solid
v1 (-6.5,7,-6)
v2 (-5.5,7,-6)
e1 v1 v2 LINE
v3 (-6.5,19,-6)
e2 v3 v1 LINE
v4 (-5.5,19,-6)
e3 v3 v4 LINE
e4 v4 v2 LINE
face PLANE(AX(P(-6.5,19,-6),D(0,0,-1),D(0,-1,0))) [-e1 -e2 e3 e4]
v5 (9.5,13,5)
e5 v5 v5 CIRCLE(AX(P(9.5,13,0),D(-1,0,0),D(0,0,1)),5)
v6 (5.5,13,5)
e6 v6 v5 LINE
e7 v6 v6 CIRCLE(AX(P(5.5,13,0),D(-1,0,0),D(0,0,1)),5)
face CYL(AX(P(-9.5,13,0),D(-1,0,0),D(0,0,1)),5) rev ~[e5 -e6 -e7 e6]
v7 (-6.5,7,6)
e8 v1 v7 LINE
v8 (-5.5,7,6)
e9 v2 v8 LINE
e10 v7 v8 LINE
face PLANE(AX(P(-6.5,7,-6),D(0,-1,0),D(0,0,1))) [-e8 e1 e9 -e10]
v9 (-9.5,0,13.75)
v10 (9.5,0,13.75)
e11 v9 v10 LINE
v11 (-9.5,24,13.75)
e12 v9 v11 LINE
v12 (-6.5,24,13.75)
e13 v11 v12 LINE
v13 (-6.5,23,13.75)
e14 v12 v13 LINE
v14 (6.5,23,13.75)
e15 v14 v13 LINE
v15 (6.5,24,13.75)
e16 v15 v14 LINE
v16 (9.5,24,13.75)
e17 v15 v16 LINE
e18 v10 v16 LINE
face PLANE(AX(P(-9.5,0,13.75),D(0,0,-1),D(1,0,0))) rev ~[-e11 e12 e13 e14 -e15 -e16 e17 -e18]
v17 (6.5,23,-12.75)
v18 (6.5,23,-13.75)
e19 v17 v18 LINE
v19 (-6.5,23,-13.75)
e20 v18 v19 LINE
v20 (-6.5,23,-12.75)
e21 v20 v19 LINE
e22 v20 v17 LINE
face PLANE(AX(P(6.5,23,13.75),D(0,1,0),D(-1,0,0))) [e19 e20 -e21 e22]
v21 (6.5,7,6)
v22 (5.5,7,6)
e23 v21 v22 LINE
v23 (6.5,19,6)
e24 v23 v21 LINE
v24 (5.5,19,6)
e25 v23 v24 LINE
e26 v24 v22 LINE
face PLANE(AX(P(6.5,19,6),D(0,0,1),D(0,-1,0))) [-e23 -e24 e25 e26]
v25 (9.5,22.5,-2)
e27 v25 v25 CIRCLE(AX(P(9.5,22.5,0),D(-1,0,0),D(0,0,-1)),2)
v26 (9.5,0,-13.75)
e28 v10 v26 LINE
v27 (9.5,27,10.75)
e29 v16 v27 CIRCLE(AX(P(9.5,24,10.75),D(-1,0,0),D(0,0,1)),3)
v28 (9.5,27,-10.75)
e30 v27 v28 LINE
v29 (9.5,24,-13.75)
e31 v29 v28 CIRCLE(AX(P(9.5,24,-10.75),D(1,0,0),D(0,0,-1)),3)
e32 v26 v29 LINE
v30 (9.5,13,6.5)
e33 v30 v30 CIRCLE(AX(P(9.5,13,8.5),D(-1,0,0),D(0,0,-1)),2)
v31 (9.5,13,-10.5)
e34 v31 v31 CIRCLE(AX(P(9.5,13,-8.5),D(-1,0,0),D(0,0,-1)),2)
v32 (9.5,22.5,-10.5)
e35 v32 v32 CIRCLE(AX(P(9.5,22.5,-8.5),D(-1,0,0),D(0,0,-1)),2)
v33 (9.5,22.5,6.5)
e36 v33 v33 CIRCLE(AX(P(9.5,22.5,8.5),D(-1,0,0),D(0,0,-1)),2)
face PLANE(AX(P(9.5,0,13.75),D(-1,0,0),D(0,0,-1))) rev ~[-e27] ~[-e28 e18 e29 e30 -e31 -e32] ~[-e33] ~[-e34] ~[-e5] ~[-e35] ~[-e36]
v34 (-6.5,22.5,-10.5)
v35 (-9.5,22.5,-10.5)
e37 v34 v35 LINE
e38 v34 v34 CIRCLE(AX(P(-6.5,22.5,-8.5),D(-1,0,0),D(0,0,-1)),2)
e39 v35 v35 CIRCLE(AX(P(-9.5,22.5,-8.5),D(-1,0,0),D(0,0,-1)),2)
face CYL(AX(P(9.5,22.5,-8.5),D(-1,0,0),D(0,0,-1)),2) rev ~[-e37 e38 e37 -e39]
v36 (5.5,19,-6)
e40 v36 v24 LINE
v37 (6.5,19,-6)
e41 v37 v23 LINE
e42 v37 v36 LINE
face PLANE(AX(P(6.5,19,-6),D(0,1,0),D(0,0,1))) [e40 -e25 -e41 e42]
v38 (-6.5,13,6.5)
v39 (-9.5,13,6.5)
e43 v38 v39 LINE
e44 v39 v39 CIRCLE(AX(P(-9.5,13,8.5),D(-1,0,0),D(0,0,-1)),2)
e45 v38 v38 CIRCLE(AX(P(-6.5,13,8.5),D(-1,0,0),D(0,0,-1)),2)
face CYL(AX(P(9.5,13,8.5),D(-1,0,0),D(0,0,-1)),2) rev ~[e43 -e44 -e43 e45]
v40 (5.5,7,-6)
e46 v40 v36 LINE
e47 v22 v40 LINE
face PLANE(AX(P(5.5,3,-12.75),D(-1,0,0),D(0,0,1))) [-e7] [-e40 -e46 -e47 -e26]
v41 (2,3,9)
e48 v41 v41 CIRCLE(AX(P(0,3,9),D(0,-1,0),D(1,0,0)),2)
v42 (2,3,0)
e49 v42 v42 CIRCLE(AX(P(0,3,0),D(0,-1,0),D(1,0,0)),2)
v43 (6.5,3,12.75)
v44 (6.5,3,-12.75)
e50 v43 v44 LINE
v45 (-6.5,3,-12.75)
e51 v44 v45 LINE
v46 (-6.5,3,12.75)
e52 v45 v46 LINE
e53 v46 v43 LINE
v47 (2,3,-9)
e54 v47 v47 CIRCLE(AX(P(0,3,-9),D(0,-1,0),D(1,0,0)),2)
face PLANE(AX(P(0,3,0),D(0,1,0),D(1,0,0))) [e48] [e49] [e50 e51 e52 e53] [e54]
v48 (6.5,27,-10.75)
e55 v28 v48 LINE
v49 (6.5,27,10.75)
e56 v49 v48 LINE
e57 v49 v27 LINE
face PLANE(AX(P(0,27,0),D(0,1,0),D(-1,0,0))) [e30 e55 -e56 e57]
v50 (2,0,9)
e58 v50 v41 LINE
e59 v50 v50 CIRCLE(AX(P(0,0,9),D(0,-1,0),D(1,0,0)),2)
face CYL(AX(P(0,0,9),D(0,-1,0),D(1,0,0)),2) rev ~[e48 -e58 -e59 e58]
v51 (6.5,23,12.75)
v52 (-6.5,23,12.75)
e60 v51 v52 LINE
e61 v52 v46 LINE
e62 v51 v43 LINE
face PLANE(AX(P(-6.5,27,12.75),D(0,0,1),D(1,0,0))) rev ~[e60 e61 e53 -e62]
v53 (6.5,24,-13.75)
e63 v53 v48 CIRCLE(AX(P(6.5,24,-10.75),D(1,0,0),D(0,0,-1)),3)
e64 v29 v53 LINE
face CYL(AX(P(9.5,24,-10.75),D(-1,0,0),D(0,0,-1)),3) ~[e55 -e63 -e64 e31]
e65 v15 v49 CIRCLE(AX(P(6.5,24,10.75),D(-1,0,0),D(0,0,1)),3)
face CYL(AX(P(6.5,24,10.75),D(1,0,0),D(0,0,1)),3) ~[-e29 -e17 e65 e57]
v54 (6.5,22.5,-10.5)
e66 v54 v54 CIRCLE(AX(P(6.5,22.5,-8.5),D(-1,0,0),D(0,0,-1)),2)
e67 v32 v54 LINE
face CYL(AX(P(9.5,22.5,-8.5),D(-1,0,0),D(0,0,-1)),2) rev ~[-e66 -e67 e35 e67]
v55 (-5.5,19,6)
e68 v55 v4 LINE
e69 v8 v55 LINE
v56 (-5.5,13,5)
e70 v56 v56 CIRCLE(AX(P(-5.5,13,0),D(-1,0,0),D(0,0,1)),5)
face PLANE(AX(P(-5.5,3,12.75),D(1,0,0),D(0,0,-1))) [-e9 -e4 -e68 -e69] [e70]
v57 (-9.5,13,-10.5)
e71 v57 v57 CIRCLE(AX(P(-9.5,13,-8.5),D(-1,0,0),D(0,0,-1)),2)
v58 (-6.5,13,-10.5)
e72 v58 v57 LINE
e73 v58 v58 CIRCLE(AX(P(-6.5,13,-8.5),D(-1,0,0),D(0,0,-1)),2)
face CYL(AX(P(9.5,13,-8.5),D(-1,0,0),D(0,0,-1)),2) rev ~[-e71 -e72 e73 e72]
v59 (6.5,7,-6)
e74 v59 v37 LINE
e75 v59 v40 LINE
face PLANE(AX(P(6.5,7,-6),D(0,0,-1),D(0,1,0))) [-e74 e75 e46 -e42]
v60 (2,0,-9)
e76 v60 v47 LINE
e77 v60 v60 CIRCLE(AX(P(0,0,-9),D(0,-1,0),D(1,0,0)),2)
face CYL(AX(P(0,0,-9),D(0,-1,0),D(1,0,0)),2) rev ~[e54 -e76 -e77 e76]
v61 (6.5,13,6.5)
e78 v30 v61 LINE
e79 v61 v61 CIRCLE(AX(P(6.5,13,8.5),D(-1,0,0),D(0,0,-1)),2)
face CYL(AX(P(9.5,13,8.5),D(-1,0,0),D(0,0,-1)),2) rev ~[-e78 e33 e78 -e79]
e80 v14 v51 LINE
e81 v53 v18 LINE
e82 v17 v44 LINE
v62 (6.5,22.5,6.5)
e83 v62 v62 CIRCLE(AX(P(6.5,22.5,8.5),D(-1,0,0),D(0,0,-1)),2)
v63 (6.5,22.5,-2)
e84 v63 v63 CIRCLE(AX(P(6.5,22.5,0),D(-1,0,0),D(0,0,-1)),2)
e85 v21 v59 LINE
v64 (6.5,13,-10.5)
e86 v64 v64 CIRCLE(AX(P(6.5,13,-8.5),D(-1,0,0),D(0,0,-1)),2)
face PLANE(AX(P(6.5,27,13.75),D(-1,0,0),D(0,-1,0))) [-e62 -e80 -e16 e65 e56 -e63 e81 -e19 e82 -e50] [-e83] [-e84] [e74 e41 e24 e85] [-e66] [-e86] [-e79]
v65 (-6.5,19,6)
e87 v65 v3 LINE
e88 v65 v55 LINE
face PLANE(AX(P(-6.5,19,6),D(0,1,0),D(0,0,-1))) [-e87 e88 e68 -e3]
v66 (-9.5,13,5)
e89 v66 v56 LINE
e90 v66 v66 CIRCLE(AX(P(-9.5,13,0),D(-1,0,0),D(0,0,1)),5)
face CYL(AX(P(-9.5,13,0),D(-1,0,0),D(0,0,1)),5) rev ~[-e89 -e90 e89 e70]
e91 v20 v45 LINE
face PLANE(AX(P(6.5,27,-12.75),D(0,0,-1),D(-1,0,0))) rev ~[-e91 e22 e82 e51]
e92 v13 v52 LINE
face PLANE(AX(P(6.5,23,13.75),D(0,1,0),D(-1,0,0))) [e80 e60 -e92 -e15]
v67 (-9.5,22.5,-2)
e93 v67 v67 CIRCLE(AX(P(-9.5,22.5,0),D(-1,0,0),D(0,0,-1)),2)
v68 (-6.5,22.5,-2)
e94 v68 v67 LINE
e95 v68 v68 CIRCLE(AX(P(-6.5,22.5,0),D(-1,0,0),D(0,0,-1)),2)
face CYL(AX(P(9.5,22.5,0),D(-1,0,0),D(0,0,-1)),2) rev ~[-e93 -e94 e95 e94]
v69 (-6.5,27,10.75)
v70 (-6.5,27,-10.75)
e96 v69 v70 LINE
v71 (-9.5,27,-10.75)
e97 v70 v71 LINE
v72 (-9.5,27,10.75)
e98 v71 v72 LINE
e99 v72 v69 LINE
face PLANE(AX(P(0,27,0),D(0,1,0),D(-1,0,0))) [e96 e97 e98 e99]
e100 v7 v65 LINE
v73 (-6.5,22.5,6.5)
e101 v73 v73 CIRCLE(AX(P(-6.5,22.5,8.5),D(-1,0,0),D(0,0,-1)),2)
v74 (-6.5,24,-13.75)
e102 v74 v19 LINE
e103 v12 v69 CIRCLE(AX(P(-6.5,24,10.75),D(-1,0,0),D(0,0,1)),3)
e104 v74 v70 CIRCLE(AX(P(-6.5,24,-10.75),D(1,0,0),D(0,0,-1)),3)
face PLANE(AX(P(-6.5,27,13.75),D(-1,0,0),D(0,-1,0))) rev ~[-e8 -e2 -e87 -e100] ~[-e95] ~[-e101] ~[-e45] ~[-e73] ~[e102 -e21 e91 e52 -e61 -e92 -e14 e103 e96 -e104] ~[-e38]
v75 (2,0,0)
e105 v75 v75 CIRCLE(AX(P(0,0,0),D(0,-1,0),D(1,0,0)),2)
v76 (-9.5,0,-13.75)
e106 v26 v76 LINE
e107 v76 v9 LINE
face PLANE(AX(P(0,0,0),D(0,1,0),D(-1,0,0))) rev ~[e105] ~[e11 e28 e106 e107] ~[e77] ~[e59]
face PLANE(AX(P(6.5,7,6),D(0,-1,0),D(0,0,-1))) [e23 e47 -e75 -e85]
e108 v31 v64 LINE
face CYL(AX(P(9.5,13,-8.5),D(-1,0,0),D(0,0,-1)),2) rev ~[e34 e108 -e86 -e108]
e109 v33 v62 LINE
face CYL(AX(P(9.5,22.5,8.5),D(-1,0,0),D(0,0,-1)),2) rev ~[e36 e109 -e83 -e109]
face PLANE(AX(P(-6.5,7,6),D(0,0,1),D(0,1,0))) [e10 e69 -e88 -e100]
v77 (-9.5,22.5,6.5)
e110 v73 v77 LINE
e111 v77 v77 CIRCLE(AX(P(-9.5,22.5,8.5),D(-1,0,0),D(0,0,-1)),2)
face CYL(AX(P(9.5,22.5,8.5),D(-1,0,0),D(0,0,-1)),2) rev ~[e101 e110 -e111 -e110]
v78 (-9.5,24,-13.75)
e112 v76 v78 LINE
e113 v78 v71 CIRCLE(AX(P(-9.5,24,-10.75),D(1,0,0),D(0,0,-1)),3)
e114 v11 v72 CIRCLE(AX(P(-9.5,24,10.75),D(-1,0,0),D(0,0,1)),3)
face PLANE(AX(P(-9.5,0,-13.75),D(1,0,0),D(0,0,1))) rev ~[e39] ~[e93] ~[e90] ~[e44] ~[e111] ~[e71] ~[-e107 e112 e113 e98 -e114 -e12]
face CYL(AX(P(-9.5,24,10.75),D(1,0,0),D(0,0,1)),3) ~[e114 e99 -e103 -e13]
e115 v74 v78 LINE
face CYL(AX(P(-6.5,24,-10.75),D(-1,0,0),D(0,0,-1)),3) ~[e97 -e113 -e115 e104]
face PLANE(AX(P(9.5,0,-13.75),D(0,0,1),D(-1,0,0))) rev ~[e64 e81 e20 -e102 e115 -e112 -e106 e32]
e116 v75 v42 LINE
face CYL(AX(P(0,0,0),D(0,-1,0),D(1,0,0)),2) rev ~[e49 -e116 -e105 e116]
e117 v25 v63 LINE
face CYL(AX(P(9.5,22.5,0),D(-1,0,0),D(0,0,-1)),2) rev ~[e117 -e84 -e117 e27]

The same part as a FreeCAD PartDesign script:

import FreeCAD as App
import Part
import Sketcher
from FreeCAD import Vector


def edges_at(feature, points):
    """Names of the edges that pass closest to the given points."""
    edges = feature.Shape.Edges
    near = lambda p: min(range(len(edges)), key=lambda i: edges[i].distToShape(Part.Vertex(*p))[0])
    return sorted({f"Edge{near(p) + 1}" for p in points})

doc = App.newDocument("Part")
params = doc.addObject("Spreadsheet::Sheet", "Params")
for row, (alias, value) in enumerate([
    ("sketch1_width", "19 mm"),
    ("sketch1_height", "27.5 mm"),
    ("pad1_length", "27 mm"),
    ("sketch2_width", "13 mm"),
    ("sketch2_height", "25.5 mm"),
    ("pocket1_length", "24 mm"),
    ("sketch3_height", "4 mm"),
    ("sketch3_width", "13 mm"),
    ("pocket2_length", "30 mm"),
    ("fillet_radius", "3 mm"),
    ("sketch4_diameter", "4 mm"),
    ("pocket3_length", "5 mm"),
    ("sketch5_diameter", "4 mm"),
    ("hole_diameter", "4 mm"),
    ("sketch6_width", "12 mm"),
    ("sketch6_diameter", "4 mm"),
    ("pad2_length", "1 mm"),
    ("sketch7_diameter", "4 mm"),
    ("sketch7_width", "12 mm"),
    ("pad3_length", "1 mm"),
    ("sketch8_diameter", "10 mm"),
    ("sketch8_diameter2", "4 mm"),
], start=1):
    params.set(f"A{row}", alias)
    params.set(f"B{row}", "=" + value)
    params.setAlias(f"B{row}", alias)

body = doc.addObject("PartDesign::Body", "Body")

# Sketch on XZ plane
sketch1 = body.newObject("Sketcher::SketchObject", "Sketch")
sketch1.AttachmentSupport = (doc.getObject("XZ_Plane"), [""])
sketch1.MapMode = "FlatFace"
sketch1.addGeometry([
    Part.LineSegment(Vector(-9.5, -13.75, 0), Vector(-9.5, 13.75, 0)),
    Part.LineSegment(Vector(-9.5, 13.75, 0), Vector(9.5, 13.75, 0)),
    Part.LineSegment(Vector(9.5, 13.75, 0), Vector(9.5, -13.75, 0)),
    Part.LineSegment(Vector(9.5, -13.75, 0), Vector(-9.5, -13.75, 0)),
], False)
sketch1.addConstraint([
    Sketcher.Constraint("Coincident", 0, 2, 1, 1),
    Sketcher.Constraint("Coincident", 1, 2, 2, 1),
    Sketcher.Constraint("Coincident", 2, 2, 3, 1),
    Sketcher.Constraint("Coincident", 3, 2, 0, 1),
    Sketcher.Constraint("Vertical", 0),
    Sketcher.Constraint("Horizontal", 1),
    Sketcher.Constraint("Vertical", 2),
    Sketcher.Constraint("Horizontal", 3),
    Sketcher.Constraint("Symmetric", 0, 2, 2, 2, -1, 1),
    Sketcher.Constraint("DistanceX", 1, 1, 1, 2, 19.0),
    Sketcher.Constraint("DistanceY", 0, 1, 0, 2, 27.5),
])
sketch1.setExpression("Constraints[9]", "Params.sketch1_width")
sketch1.setExpression("Constraints[10]", "Params.sketch1_height")
pad1 = body.newObject("PartDesign::Pad", "Pad")
pad1.Profile = sketch1
pad1.setExpression("Length", "Params.pad1_length")
pad1.Reversed = True

# Sketch on XZ plane
sketch2 = body.newObject("Sketcher::SketchObject", "Sketch001")
sketch2.AttachmentSupport = (doc.getObject("XZ_Plane"), [""])
sketch2.MapMode = "FlatFace"
sketch2.AttachmentOffset = App.Placement(Vector(0, 0, -27), App.Rotation())
sketch2.addGeometry([
    Part.LineSegment(Vector(-6.5, -12.75, 0), Vector(-6.5, 12.75, 0)),
    Part.LineSegment(Vector(-6.5, 12.75, 0), Vector(6.5, 12.75, 0)),
    Part.LineSegment(Vector(6.5, 12.75, 0), Vector(6.5, -12.75, 0)),
    Part.LineSegment(Vector(6.5, -12.75, 0), Vector(-6.5, -12.75, 0)),
], False)
sketch2.addConstraint([
    Sketcher.Constraint("Coincident", 0, 2, 1, 1),
    Sketcher.Constraint("Coincident", 1, 2, 2, 1),
    Sketcher.Constraint("Coincident", 2, 2, 3, 1),
    Sketcher.Constraint("Coincident", 3, 2, 0, 1),
    Sketcher.Constraint("Vertical", 0),
    Sketcher.Constraint("Horizontal", 1),
    Sketcher.Constraint("Vertical", 2),
    Sketcher.Constraint("Horizontal", 3),
    Sketcher.Constraint("Symmetric", 0, 2, 2, 2, -1, 1),
    Sketcher.Constraint("DistanceX", 1, 1, 1, 2, 13.0),
    Sketcher.Constraint("DistanceY", 0, 1, 0, 2, 25.5),
])
sketch2.setExpression("Constraints[9]", "Params.sketch2_width")
sketch2.setExpression("Constraints[10]", "Params.sketch2_height")
pocket1 = body.newObject("PartDesign::Pocket", "Pocket")
pocket1.Profile = sketch2
pocket1.setExpression("Length", "Params.pocket1_length")
pocket1.Reversed = True

# Sketch on XY plane
sketch3 = body.newObject("Sketcher::SketchObject", "Sketch002")
sketch3.AttachmentSupport = (doc.getObject("XY_Plane"), [""])
sketch3.MapMode = "FlatFace"
sketch3.AttachmentOffset = App.Placement(Vector(0, 0, 13.75), App.Rotation())
sketch3.addGeometry([
    Part.LineSegment(Vector(6.5, 27, 0), Vector(-6.5, 27, 0)),
    Part.LineSegment(Vector(-6.5, 27, 0), Vector(-6.5, 23, 0)),
    Part.LineSegment(Vector(-6.5, 23, 0), Vector(6.5, 23, 0)),
    Part.LineSegment(Vector(6.5, 23, 0), Vector(6.5, 27, 0)),
], False)
sketch3.addConstraint([
    Sketcher.Constraint("Coincident", 0, 2, 1, 1),
    Sketcher.Constraint("Coincident", 1, 2, 2, 1),
    Sketcher.Constraint("Coincident", 2, 2, 3, 1),
    Sketcher.Constraint("Coincident", 3, 2, 0, 1),
    Sketcher.Constraint("Horizontal", 0),
    Sketcher.Constraint("Vertical", 1),
    Sketcher.Constraint("Horizontal", 2),
    Sketcher.Constraint("Vertical", 3),
    Sketcher.Constraint("DistanceY", 1, 2, 1, 1, 4.0),
    Sketcher.Constraint("DistanceX", 0, 2, 0, 1, 13.0),
    Sketcher.Constraint("DistanceY", -1, 1, 0, 2, 27.0),
    Sketcher.Constraint("DistanceX", 0, 2, -1, 1, 6.5),
])
sketch3.setExpression("Constraints[8]", "Params.sketch3_height")
sketch3.setExpression("Constraints[9]", "Params.sketch3_width")
pocket2 = body.newObject("PartDesign::Pocket", "Pocket001")
pocket2.Profile = sketch3
pocket2.setExpression("Length", "Params.pocket2_length")
doc.recompute()

fillet = body.newObject("PartDesign::Fillet", "Fillet")
fillet.Base = (pocket2, edges_at(pocket2, [
    (-8, 27, 13.75),
    (-8, 27, -13.75),
    (8, 27, -13.75),
    (8, 27, 13.75),
]))
fillet.setExpression("Radius", "Params.fillet_radius")

# Sketch on XZ plane
sketch4 = body.newObject("Sketcher::SketchObject", "Sketch003")
sketch4.AttachmentSupport = (doc.getObject("XZ_Plane"), [""])
sketch4.MapMode = "FlatFace"
sketch4.addGeometry([
    Part.Circle(Vector(0, 0, 0), Vector(0, 0, 1), 2),
    Part.Circle(Vector(0, -9, 0), Vector(0, 0, 1), 2),
    Part.Circle(Vector(0, 9, 0), Vector(0, 0, 1), 2),
], False)
sketch4.addConstraint([
    Sketcher.Constraint("Coincident", 0, 3, -1, 1),
    Sketcher.Constraint("Equal", 0, 1),
    Sketcher.Constraint("Equal", 1, 2),
    Sketcher.Constraint("Symmetric", 1, 3, 2, 3, -1, 1),
    Sketcher.Constraint("PointOnObject", 1, 3, -2),
    Sketcher.Constraint("Diameter", 0, 4.0),
    Sketcher.Constraint("DistanceY", 1, 3, -1, 1, 9.0),
])
sketch4.setExpression("Constraints[5]", "Params.sketch4_diameter")
pocket3 = body.newObject("PartDesign::Pocket", "Pocket002")
pocket3.Profile = sketch4
pocket3.setExpression("Length", "Params.pocket3_length")

# Sketch on YZ plane
sketch5 = body.newObject("Sketcher::SketchObject", "Sketch004")
sketch5.AttachmentSupport = (doc.getObject("YZ_Plane"), [""])
sketch5.MapMode = "FlatFace"
sketch5.AttachmentOffset = App.Placement(Vector(0, 0, 9.5), App.Rotation())
sketch5.addGeometry([
    Part.Circle(Vector(22.5, 8.5, 0), Vector(0, 0, 1), 2),  # 0
    Part.Circle(Vector(22.5, 0, 0), Vector(0, 0, 1), 2),  # 1
    Part.Circle(Vector(22.5, -8.5, 0), Vector(0, 0, 1), 2),  # 2
    Part.Circle(Vector(13, 0, 0), Vector(0, 0, 1), 2),  # 3
    Part.Circle(Vector(13, -8.5, 0), Vector(0, 0, 1), 2),  # 4
    Part.Circle(Vector(13, 8.5, 0), Vector(0, 0, 1), 2),  # 5
], False)
sketch5.addConstraint([
    Sketcher.Constraint("Equal", 0, 1),
    Sketcher.Constraint("Equal", 1, 2),
    Sketcher.Constraint("Equal", 2, 3),
    Sketcher.Constraint("Equal", 3, 4),
    Sketcher.Constraint("Equal", 4, 5),
    Sketcher.Constraint("Symmetric", 0, 3, 2, 3, -1),
    Sketcher.Constraint("Symmetric", 4, 3, 5, 3, -1),
    Sketcher.Constraint("PointOnObject", 1, 3, -1),
    Sketcher.Constraint("PointOnObject", 3, 3, -1),
    Sketcher.Constraint("Horizontal", 2, 3, 4, 3),
    Sketcher.Constraint("Vertical", 0, 3, 1, 3),
    Sketcher.Constraint("Vertical", 3, 3, 4, 3),
    Sketcher.Constraint("Diameter", 0, 4.0),
    Sketcher.Constraint("DistanceX", -1, 1, 3, 3, 13.0),
    Sketcher.Constraint("DistanceY", 2, 3, 0, 3, 17.0),
    Sketcher.Constraint("DistanceX", -1, 1, 0, 3, 22.5),
])
sketch5.setExpression("Constraints[12]", "Params.sketch5_diameter")
doc.recompute()
hole = body.newObject("PartDesign::Hole", "Hole")
hole.Profile = sketch5
hole.ThreadType = "None"
hole.setExpression("Diameter", "Params.hole_diameter")
hole.DepthType = "ThroughAll"

# Sketch on YZ plane
sketch6 = body.newObject("Sketcher::SketchObject", "Sketch005")
sketch6.AttachmentSupport = (doc.getObject("YZ_Plane"), [""])
sketch6.MapMode = "FlatFace"
sketch6.AttachmentOffset = App.Placement(Vector(0, 0, -6.5), App.Rotation())
sketch6.addGeometry([
    Part.LineSegment(Vector(19, -6, 0), Vector(19, 6, 0)),  # 0
    Part.LineSegment(Vector(19, 6, 0), Vector(7, 6, 0)),  # 1
    Part.LineSegment(Vector(7, 6, 0), Vector(7, -6, 0)),  # 2
    Part.LineSegment(Vector(7, -6, 0), Vector(19, -6, 0)),  # 3
    Part.Circle(Vector(13, 0, 0), Vector(0, 0, 1), 2),  # 4
], False)
sketch6.addConstraint([
    Sketcher.Constraint("Coincident", 0, 2, 1, 1),
    Sketcher.Constraint("Coincident", 1, 2, 2, 1),
    Sketcher.Constraint("Coincident", 2, 2, 3, 1),
    Sketcher.Constraint("Coincident", 3, 2, 0, 1),
    Sketcher.Constraint("Vertical", 0),
    Sketcher.Constraint("Horizontal", 1),
    Sketcher.Constraint("Vertical", 2),
    Sketcher.Constraint("Horizontal", 3),
    Sketcher.Constraint("PointOnObject", 4, 3, -1),
    Sketcher.Constraint("Equal", 3, 0),
    Sketcher.Constraint("DistanceX", 1, 2, 1, 1, 12.0),
    Sketcher.Constraint("Diameter", 4, 4.0),
    Sketcher.Constraint("DistanceY", -1, 1, 0, 2, 6.0),
    Sketcher.Constraint("DistanceX", 4, 3, 0, 2, 6.0),
    Sketcher.Constraint("DistanceX", -1, 1, 4, 3, 13.0),
])
sketch6.setExpression("Constraints[10]", "Params.sketch6_width")
sketch6.setExpression("Constraints[11]", "Params.sketch6_diameter")
pad2 = body.newObject("PartDesign::Pad", "Pad001")
pad2.Profile = sketch6
pad2.setExpression("Length", "Params.pad2_length")

# Sketch on YZ plane
sketch7 = body.newObject("Sketcher::SketchObject", "Sketch006")
sketch7.AttachmentSupport = (doc.getObject("YZ_Plane"), [""])
sketch7.MapMode = "FlatFace"
sketch7.AttachmentOffset = App.Placement(Vector(0, 0, 6.5), App.Rotation())
sketch7.addGeometry([
    Part.LineSegment(Vector(19, 6, 0), Vector(19, -6, 0)),  # 0
    Part.LineSegment(Vector(19, -6, 0), Vector(7, -6, 0)),  # 1
    Part.LineSegment(Vector(7, -6, 0), Vector(7, 6, 0)),  # 2
    Part.LineSegment(Vector(7, 6, 0), Vector(19, 6, 0)),  # 3
    Part.Circle(Vector(13, 0, 0), Vector(0, 0, 1), 2),  # 4
], False)
sketch7.addConstraint([
    Sketcher.Constraint("Coincident", 0, 2, 1, 1),
    Sketcher.Constraint("Coincident", 1, 2, 2, 1),
    Sketcher.Constraint("Coincident", 2, 2, 3, 1),
    Sketcher.Constraint("Coincident", 3, 2, 0, 1),
    Sketcher.Constraint("Vertical", 0),
    Sketcher.Constraint("Horizontal", 1),
    Sketcher.Constraint("Vertical", 2),
    Sketcher.Constraint("Horizontal", 3),
    Sketcher.Constraint("PointOnObject", 4, 3, -1),
    Sketcher.Constraint("Equal", 3, 0),
    Sketcher.Constraint("Diameter", 4, 4.0),
    Sketcher.Constraint("DistanceX", 1, 2, 1, 1, 12.0),
    Sketcher.Constraint("DistanceX", -1, 1, 4, 3, 13.0),
    Sketcher.Constraint("DistanceX", -1, 1, 0, 2, 19.0),
    Sketcher.Constraint("DistanceY", 0, 2, -1, 1, 6.0),
])
sketch7.setExpression("Constraints[10]", "Params.sketch7_diameter")
sketch7.setExpression("Constraints[11]", "Params.sketch7_width")
pad3 = body.newObject("PartDesign::Pad", "Pad002")
pad3.Profile = sketch7
pad3.setExpression("Length", "Params.pad3_length")
pad3.Reversed = True

# Sketch on YZ plane
sketch8 = body.newObject("Sketcher::SketchObject", "Sketch007")
sketch8.AttachmentSupport = (doc.getObject("YZ_Plane"), [""])
sketch8.MapMode = "FlatFace"
sketch8.AttachmentOffset = App.Placement(Vector(0, 0, -9.5), App.Rotation())
sketch8.addGeometry([
    Part.Circle(Vector(13, 0, 0), Vector(0, 0, 1), 5),
    Part.Circle(Vector(13, 0, 0), Vector(0, 0, 1), 2),
], False)
sketch8.addConstraint([
    Sketcher.Constraint("Coincident", 1, 3, 0, 3),
    Sketcher.Constraint("PointOnObject", 0, 3, -1),
    Sketcher.Constraint("Diameter", 0, 10.0),
    Sketcher.Constraint("Diameter", 1, 4.0),
    Sketcher.Constraint("DistanceX", -1, 1, 0, 3, 13.0),
])
sketch8.setExpression("Constraints[2]", "Params.sketch8_diameter")
sketch8.setExpression("Constraints[3]", "Params.sketch8_diameter2")
pocket4 = body.newObject("PartDesign::Pocket", "Pocket003")
pocket4.Profile = sketch8
pocket4.Type = "ThroughAll"
pocket4.Reversed = True

doc.recompute()
